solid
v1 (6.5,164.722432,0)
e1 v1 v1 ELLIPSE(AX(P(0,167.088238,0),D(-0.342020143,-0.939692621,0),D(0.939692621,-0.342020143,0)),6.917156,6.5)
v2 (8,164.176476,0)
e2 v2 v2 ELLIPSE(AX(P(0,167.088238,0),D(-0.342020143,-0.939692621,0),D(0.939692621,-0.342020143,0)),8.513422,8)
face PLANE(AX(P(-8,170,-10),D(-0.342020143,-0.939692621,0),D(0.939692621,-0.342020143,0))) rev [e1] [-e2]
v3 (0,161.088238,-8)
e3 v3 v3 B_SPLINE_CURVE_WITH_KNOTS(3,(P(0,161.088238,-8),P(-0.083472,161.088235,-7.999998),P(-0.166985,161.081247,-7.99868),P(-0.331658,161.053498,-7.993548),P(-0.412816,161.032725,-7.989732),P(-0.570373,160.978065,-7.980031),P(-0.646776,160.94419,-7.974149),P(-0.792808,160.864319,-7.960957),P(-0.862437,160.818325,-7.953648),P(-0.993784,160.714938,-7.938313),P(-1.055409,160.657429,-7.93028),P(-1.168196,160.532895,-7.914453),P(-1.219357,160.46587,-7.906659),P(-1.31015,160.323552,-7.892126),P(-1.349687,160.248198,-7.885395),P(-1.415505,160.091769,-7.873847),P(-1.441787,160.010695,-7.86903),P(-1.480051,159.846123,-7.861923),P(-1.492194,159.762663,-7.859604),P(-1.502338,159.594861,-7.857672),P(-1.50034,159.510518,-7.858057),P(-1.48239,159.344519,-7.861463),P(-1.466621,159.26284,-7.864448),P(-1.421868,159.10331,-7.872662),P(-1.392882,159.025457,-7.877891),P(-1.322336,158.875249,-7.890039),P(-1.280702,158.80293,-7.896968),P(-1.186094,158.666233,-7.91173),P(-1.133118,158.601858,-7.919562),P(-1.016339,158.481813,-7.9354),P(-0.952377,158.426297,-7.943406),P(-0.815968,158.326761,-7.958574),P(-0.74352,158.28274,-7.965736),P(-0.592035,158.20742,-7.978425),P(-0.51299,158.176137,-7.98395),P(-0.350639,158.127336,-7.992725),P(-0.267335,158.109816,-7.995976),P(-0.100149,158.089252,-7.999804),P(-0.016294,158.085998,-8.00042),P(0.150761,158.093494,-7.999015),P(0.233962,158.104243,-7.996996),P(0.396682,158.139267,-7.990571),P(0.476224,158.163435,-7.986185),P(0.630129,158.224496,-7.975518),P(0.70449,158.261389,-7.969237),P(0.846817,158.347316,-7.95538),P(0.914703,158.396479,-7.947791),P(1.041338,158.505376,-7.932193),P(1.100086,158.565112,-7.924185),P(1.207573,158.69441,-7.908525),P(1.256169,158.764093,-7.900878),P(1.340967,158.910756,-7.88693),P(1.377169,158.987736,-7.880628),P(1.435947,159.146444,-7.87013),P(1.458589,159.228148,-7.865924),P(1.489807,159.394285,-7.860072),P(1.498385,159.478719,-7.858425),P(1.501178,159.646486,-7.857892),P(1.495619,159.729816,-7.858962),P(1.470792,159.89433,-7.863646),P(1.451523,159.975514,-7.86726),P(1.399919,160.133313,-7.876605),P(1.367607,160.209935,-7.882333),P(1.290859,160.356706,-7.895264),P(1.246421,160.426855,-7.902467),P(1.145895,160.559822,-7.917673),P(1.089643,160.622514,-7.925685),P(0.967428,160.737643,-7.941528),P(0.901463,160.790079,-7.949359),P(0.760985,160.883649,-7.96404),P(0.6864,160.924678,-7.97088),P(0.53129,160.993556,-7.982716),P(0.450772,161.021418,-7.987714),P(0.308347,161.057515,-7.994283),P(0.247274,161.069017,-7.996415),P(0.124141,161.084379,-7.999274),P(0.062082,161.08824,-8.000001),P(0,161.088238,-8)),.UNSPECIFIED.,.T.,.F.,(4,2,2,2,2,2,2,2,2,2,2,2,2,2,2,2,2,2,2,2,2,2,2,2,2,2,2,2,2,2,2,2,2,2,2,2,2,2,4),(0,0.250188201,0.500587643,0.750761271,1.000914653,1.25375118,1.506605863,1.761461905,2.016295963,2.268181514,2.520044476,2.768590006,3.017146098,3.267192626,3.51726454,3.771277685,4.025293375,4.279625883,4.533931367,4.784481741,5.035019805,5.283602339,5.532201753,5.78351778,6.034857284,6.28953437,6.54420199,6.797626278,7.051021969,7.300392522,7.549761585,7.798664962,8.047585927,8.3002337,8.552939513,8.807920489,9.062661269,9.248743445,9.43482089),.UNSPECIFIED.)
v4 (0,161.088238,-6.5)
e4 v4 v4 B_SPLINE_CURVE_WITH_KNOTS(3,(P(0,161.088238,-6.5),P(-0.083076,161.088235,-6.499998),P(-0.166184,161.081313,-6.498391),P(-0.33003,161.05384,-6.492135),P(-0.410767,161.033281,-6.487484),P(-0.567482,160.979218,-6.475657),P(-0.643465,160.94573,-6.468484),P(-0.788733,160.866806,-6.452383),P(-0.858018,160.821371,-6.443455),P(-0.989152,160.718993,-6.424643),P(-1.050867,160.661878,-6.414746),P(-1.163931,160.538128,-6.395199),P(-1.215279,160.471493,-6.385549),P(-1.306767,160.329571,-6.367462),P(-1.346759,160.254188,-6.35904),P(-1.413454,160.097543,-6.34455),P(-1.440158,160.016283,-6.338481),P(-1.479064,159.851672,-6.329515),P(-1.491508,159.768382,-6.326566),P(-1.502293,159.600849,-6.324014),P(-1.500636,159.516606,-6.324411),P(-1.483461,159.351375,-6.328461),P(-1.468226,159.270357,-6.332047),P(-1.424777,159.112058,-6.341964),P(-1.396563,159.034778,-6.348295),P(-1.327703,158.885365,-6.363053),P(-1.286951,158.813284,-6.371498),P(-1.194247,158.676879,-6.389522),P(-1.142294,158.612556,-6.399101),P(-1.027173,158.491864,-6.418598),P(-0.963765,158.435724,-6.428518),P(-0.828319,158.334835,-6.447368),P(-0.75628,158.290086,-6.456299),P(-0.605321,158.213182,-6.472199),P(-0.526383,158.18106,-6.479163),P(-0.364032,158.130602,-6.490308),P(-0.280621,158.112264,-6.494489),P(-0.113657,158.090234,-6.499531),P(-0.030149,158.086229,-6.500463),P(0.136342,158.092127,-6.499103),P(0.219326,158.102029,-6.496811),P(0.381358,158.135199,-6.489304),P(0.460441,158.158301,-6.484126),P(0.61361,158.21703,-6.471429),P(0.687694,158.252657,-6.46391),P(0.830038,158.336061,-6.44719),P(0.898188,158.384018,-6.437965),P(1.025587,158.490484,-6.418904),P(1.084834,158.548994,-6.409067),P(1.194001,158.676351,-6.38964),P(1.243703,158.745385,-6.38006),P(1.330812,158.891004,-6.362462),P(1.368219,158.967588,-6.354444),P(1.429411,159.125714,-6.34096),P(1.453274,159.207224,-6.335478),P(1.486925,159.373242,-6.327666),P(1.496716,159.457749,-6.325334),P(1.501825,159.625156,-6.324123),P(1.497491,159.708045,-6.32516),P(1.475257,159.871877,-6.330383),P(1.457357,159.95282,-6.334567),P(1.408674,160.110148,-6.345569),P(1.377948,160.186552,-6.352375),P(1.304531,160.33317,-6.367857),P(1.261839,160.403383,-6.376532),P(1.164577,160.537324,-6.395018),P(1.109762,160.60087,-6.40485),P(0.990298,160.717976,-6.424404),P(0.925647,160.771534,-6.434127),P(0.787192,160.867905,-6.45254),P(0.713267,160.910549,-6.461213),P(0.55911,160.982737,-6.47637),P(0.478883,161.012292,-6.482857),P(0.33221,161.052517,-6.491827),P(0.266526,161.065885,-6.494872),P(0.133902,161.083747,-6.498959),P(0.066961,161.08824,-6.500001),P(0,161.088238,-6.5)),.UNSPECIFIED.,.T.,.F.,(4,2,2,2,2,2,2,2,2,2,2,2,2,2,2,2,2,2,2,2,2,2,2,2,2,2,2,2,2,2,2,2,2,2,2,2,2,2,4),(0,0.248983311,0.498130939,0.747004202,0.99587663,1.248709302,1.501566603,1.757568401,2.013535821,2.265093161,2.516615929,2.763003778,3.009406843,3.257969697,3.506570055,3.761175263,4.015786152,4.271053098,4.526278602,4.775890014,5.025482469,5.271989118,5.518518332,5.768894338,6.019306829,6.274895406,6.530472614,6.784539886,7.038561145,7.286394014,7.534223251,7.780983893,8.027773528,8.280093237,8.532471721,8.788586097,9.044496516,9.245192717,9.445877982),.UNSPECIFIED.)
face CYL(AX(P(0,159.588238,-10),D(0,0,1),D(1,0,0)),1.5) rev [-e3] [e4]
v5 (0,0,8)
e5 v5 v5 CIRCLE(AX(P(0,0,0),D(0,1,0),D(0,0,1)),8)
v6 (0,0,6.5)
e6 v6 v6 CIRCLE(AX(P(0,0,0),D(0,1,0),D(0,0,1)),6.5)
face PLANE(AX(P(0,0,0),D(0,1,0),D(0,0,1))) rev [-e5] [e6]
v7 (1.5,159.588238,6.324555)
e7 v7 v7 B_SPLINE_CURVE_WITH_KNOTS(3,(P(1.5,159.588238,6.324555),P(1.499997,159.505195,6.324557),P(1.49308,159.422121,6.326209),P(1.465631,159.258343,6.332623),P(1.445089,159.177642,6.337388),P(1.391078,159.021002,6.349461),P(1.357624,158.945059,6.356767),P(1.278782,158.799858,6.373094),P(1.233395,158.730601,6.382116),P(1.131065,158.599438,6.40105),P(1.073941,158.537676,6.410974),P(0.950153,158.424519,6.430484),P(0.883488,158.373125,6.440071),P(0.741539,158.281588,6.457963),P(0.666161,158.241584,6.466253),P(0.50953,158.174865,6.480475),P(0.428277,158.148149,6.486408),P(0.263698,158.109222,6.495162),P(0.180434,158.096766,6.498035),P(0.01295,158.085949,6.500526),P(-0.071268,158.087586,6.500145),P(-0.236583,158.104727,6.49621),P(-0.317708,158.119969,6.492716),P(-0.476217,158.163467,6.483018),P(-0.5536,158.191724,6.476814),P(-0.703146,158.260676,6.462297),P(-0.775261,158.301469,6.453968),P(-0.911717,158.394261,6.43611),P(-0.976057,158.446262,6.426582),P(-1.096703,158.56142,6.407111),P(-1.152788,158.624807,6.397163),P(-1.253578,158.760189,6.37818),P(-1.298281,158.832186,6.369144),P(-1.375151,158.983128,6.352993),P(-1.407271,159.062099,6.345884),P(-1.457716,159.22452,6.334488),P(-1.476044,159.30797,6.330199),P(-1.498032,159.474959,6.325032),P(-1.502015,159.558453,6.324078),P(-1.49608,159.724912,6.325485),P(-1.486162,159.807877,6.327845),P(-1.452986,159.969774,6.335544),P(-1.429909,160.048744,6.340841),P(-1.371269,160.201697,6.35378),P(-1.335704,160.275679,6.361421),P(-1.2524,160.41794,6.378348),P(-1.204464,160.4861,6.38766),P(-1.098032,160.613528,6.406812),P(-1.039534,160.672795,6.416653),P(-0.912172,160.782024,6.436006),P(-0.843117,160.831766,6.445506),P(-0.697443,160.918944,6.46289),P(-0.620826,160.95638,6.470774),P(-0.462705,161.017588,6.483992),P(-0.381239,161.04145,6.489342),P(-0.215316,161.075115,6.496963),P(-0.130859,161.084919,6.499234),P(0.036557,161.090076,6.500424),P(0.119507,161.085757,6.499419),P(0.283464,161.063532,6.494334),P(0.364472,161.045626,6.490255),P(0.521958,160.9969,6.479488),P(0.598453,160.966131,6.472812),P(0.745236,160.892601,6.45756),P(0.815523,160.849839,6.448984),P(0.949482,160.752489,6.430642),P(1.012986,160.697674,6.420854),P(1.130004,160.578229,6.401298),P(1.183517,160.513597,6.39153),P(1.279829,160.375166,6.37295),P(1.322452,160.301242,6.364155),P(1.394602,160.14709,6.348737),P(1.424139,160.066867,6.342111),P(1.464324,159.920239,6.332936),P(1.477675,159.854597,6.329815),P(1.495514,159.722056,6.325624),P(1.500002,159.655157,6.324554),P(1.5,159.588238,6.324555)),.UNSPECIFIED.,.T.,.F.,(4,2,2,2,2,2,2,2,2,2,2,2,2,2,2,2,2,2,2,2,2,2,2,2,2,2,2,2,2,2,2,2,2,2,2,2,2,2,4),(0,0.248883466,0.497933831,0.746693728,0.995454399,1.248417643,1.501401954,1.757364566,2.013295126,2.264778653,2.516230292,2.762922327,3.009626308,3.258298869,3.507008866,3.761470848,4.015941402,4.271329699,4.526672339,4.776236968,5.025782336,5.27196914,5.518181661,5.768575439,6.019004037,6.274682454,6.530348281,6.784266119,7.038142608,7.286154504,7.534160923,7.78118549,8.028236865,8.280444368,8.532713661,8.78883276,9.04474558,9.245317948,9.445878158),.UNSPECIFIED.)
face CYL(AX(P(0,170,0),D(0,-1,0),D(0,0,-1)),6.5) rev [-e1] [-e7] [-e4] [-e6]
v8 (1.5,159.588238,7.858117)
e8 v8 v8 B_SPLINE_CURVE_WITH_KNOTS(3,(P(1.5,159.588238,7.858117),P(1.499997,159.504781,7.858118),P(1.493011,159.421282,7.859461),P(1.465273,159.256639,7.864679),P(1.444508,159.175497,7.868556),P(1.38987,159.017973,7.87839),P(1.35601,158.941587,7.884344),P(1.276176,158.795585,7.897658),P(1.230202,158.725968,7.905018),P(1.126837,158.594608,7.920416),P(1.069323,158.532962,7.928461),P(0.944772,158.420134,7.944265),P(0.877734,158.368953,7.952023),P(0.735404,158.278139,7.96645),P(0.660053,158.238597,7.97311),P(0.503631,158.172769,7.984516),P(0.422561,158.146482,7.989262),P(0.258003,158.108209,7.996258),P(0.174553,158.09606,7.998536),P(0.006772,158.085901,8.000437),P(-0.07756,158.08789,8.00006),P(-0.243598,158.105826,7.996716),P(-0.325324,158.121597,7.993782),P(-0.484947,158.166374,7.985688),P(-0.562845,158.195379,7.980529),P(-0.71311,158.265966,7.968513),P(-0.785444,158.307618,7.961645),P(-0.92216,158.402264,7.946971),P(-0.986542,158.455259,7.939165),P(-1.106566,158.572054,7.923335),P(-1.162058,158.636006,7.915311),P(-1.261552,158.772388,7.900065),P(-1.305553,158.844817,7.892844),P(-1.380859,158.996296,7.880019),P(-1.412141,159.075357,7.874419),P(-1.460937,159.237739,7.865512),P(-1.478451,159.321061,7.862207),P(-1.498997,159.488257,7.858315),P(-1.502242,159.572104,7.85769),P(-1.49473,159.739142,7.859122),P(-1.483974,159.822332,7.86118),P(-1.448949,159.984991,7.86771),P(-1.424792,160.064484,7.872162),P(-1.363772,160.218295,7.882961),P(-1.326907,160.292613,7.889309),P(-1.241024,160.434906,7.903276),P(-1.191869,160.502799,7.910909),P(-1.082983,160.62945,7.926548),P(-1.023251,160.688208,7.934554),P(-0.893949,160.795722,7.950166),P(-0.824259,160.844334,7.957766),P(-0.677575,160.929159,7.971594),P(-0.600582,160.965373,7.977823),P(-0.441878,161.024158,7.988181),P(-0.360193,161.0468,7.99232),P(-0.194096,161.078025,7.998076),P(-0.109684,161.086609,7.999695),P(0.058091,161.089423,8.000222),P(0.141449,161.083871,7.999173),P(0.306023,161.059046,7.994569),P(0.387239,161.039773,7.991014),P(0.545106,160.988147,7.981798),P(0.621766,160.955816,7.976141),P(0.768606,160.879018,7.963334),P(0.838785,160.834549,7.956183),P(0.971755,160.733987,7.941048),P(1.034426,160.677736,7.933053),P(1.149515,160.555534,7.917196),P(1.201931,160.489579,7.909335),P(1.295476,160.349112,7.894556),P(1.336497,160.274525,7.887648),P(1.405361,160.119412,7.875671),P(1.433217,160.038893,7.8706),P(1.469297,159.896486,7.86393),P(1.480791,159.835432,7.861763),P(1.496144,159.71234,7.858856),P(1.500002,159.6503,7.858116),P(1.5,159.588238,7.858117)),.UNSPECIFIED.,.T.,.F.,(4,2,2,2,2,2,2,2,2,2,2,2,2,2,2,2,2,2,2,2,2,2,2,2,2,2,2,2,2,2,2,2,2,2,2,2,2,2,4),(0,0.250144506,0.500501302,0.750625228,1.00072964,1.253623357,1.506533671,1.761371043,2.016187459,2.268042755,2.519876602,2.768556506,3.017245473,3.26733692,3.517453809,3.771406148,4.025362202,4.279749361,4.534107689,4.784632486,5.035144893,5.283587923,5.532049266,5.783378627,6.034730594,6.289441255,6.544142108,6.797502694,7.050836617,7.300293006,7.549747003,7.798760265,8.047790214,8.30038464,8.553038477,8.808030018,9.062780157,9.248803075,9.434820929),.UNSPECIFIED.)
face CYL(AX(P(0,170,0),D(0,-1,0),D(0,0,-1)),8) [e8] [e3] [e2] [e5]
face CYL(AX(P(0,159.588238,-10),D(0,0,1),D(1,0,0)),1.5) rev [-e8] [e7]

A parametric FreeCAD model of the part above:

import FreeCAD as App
import Part
import Sketcher

V = App.Vector
Q = App.Units.Quantity


def add_polygon(sketch, points):
    """Adds a closed chain of lines whose ends are joined by coincident constraints."""
    first, n = sketch.GeometryCount, len(points)
    for a, b in zip(points, points[1:] + points[:1]):
        sketch.addGeometry(Part.LineSegment(App.Vector(*a, 0), App.Vector(*b, 0)), False)
    for i in range(n):
        sketch.addConstraint(Sketcher.Constraint("Coincident", first + i, 2, first + (i + 1) % n, 1))

doc = App.newDocument("Part")
body = doc.addObject("PartDesign::Body", "Body")

sketch1 = body.newObject("Sketcher::SketchObject", "Sketch")
sketch1.AttachmentSupport = (doc.getObject("XZ_Plane"), [""])
sketch1.MapMode = "FlatFace"
sketch1.addGeometry([
    Part.Circle(V(0, 0, 0), V(0, 0, 1), 8),
    Part.Circle(V(0, 0, 0), V(0, 0, 1), 6),
], False)
sketch1.addConstraint([
    Sketcher.Constraint("Coincident", 0, 3, -1, 1),
    Sketcher.Constraint("Coincident", 1, 3, -1, 1),
    Sketcher.Constraint("Diameter", 0, Q("16 mm")),
    Sketcher.Constraint("Diameter", 1, Q("13 mm")),
])
pad1 = body.newObject("PartDesign::Pad", "Pad")
pad1.Profile = sketch1
pad1.Length = 170
pad1.Reversed = True

sketch2 = body.newObject("Sketcher::SketchObject", "Sketch001")
sketch2.AttachmentSupport = (doc.getObject("XY_Plane"), [""])
sketch2.MapMode = "FlatFace"
sketch2.addGeometry(Part.Circle(V(0, 159.6, 0), V(0, 0, 1), 1.5), False)
add_polygon(sketch2, [(-8, 170), (8, 164.2), (8, 170)])
sketch2.addConstraint([
    Sketcher.Constraint("Vertical", 2),
    Sketcher.Constraint("Horizontal", 3),
    Sketcher.Constraint("PointOnObject", 0, 3, -2),
    Sketcher.Constraint("Diameter", 0, Q("3 mm")),
    Sketcher.Constraint("DistanceX", 3, 2, 3, 1, Q("16 mm")),
    Sketcher.Constraint("Angle", 1, Q("-20 deg")),
    Sketcher.Constraint("DistanceX", -1, 1, 1, 2, Q("8 mm")),
    Sketcher.Constraint("DistanceY", -1, 1, 2, 2, Q("170 mm")),
    Sketcher.Constraint("DistanceY", -1, 1, 0, 3, Q("159.588238 mm")),
])
pocket1 = body.newObject("PartDesign::Pocket", "Pocket")
pocket1.Profile = sketch2
pocket1.Length = 20
pocket1.Midplane = True

doc.recompute()
